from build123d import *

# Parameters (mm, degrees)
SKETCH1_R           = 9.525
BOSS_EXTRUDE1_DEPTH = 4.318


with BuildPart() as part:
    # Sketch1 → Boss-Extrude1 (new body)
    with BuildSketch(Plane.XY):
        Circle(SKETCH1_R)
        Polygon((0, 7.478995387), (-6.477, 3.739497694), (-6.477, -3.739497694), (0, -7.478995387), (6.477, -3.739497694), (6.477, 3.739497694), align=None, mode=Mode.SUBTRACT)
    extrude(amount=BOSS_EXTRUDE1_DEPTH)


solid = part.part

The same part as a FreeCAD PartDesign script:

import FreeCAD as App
import Part
import Sketcher
from FreeCAD import Vector
Q = App.Units.Quantity


def add_polygon(sketch, points):
    """Adds a closed chain of lines whose ends are joined by coincident constraints."""
    first, n = sketch.GeometryCount, len(points)
    for a, b in zip(points, points[1:] + points[:1]):
        sketch.addGeometry(Part.LineSegment(App.Vector(*a, 0), App.Vector(*b, 0)), False)
    for i in range(n):
        sketch.addConstraint(Sketcher.Constraint("Coincident", first + i, 2, first + (i + 1) % n, 1))

doc = App.newDocument("Part")
body = doc.addObject("PartDesign::Body", "Body")

sketch1 = body.newObject("Sketcher::SketchObject", "Sketch")
sketch1.AttachmentSupport = (doc.getObject("XY_Plane"), [""])
sketch1.MapMode = "FlatFace"
sketch1.addGeometry(Part.Circle(Vector(0, 0, 0), Vector(0, 0, 1), 9.525), False)
add_polygon(sketch1, [(-6.477, 3.739498), (0, 7.478995), (6.477, 3.739498), (6.477, -3.739498), (0, -7.478995), (-6.477, -3.739498)])
sketch1.addConstraint(Sketcher.Constraint("Vertical", 3))
sketch1.addConstraint(Sketcher.Constraint("Vertical", 6))
sketch1.addConstraint(Sketcher.Constraint("Coincident", 0, 3, -1, 1))
sketch1.addConstraint(Sketcher.Constraint("Symmetric", 1, 2, 4, 2, -1, 1))
sketch1.addConstraint(Sketcher.Constraint("Symmetric", 2, 2, 5, 2, -1, 1))
sketch1.addConstraint(Sketcher.Constraint("PointOnObject", 1, 2, -2))
sketch1.addConstraint(Sketcher.Constraint("Parallel", 1, 4))
sketch1.addConstraint(Sketcher.Constraint("Horizontal", 3, 2, 5, 2))
sketch1.addConstraint(Sketcher.Constraint("Diameter", 0, Q("0.75 in")))
sketch1.addConstraint(Sketcher.Constraint("Angle", 1, Q("30 deg")))
sketch1.addConstraint(Sketcher.Constraint("DistanceX", 5, 2, 3, 2, Q("0.51 in")))
sketch1.addConstraint(Sketcher.Constraint("DistanceY", 3, 2, 3, 1, Q("7.478995 mm")))
pad1 = body.newObject("PartDesign::Pad", "Pad")
pad1.Profile = sketch1
pad1.Length = Q("0.17 in")

doc.recompute()
